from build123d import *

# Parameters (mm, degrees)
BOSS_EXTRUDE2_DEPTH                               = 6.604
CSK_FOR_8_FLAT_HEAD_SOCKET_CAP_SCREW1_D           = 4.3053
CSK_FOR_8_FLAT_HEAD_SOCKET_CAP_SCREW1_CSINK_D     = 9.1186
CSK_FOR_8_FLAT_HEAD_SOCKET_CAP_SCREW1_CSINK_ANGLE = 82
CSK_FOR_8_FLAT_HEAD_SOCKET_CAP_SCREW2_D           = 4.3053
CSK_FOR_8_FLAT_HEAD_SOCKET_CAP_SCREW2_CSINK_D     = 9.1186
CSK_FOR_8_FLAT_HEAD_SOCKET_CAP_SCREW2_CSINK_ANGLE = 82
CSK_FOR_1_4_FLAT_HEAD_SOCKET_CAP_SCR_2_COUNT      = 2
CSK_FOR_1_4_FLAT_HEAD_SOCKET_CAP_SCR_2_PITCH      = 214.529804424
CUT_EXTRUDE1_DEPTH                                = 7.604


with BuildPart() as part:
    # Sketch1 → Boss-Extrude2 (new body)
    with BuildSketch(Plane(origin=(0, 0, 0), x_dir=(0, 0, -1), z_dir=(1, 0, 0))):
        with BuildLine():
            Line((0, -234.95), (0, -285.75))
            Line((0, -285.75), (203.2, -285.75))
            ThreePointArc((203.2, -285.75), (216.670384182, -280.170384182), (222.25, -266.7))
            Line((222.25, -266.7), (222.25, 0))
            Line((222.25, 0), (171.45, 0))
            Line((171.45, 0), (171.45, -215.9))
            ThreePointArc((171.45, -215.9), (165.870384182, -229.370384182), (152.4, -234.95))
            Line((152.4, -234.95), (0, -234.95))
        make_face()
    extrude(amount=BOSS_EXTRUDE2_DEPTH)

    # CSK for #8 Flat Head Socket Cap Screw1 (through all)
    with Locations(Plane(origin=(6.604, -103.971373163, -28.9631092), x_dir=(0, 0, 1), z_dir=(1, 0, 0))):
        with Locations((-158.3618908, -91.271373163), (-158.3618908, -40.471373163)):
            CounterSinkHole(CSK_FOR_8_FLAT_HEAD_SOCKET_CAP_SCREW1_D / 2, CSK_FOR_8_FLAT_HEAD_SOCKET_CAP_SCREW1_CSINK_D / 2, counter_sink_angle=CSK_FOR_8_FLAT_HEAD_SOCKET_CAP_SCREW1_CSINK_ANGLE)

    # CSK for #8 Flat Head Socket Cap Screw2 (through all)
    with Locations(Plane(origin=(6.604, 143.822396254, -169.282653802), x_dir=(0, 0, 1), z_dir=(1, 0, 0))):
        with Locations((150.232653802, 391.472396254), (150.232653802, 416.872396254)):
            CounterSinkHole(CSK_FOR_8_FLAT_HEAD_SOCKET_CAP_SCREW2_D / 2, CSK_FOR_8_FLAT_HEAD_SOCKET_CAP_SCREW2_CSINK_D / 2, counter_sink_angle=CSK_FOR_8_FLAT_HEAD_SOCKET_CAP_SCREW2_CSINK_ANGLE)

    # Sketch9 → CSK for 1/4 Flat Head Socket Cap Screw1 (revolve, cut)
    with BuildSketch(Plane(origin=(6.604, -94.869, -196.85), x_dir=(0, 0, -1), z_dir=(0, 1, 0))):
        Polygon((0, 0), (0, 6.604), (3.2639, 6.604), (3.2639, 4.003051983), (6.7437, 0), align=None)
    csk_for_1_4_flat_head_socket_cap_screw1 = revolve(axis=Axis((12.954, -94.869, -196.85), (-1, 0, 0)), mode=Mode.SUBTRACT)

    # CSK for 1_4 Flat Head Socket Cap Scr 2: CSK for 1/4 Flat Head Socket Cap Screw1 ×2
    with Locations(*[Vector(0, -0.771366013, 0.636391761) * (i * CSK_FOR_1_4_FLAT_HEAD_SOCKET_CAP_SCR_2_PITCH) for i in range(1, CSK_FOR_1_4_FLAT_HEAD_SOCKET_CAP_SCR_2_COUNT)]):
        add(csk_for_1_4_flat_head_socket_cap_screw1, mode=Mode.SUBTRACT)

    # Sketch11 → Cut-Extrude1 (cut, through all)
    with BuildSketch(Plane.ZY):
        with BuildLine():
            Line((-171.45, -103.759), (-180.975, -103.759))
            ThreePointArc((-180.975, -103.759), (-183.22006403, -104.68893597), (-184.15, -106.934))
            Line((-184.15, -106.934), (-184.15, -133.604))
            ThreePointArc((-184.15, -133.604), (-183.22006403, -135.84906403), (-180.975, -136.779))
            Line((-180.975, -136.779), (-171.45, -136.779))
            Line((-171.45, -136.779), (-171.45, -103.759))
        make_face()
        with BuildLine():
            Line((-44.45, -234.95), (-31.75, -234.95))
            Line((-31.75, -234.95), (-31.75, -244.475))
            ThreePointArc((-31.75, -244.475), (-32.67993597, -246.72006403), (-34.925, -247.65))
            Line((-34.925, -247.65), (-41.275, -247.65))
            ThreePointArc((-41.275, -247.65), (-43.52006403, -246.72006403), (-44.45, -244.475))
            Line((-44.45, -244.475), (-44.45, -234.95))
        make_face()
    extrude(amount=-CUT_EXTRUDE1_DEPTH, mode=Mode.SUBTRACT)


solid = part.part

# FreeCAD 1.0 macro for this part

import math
import FreeCAD as App
import Part
import Sketcher
from FreeCAD import Vector
Q = App.Units.Quantity

doc = App.newDocument("Part")
body = doc.addObject("PartDesign::Body", "Body")

# Sketch on YZ plane
sketch1 = body.newObject("Sketcher::SketchObject", "Sketch")
sketch1.AttachmentSupport = (doc.getObject("YZ_Plane"), [""])
sketch1.MapMode = "FlatFace"
sketch1.addGeometry(Part.LineSegment(Vector(-235, 0, 0), Vector(-286, 0, 0)), False)
sketch1.addGeometry(Part.LineSegment(Vector(-286, 0, 0), Vector(-286, -203, 0)), False)
sketch1.addGeometry(Part.ArcOfCircle(Part.Circle(Vector(-267, -203, 0), Vector(0, 0, 1), 19), math.radians(180), math.radians(270)), False)
sketch1.addGeometry(Part.LineSegment(Vector(-267, -222, 0), Vector(0, -222, 0)), False)
sketch1.addGeometry(Part.LineSegment(Vector(0, -222, 0), Vector(0, -171, 0)), False)
sketch1.addGeometry(Part.LineSegment(Vector(0, -171, 0), Vector(-216, -171, 0)), False)
sketch1.addGeometry(Part.ArcOfCircle(Part.Circle(Vector(-216, -152, 0), Vector(0, 0, 1), 19), math.radians(180), math.radians(270)), False)
sketch1.addGeometry(Part.LineSegment(Vector(-235, -152, 0), Vector(-235, 0, 0)), False)
sketch1.addConstraint(Sketcher.Constraint("Coincident", 0, 2, 1, 1))
sketch1.addConstraint(Sketcher.Constraint("Tangent", 1, 2, 2, 1))
sketch1.addConstraint(Sketcher.Constraint("Tangent", 2, 2, 3, 1))
sketch1.addConstraint(Sketcher.Constraint("Coincident", 3, 2, 4, 1))
sketch1.addConstraint(Sketcher.Constraint("Coincident", 4, 2, 5, 1))
sketch1.addConstraint(Sketcher.Constraint("Tangent", 5, 2, 6, 2))
sketch1.addConstraint(Sketcher.Constraint("Tangent", 6, 1, 7, 1))
sketch1.addConstraint(Sketcher.Constraint("Coincident", 7, 2, 0, 1))
sketch1.addConstraint(Sketcher.Constraint("Horizontal", 0))
sketch1.addConstraint(Sketcher.Constraint("Vertical", 1))
sketch1.addConstraint(Sketcher.Constraint("Horizontal", 3))
sketch1.addConstraint(Sketcher.Constraint("Vertical", 4))
sketch1.addConstraint(Sketcher.Constraint("Horizontal", 5))
sketch1.addConstraint(Sketcher.Constraint("Vertical", 7))
sketch1.addConstraint(Sketcher.Constraint("Equal", 2, 6))
sketch1.addConstraint(Sketcher.Constraint("PointOnObject", 0, 2, -1))
sketch1.addConstraint(Sketcher.Constraint("PointOnObject", 3, 2, -2))
sketch1.addConstraint(Sketcher.Constraint("Equal", 0, 4))
sketch1.addConstraint(Sketcher.Constraint("DistanceX", 0, 2, 0, 1, Q("2 in")))
sketch1.addConstraint(Sketcher.Constraint("DistanceY", 1, 2, 1, 1, Q("8 in")))
sketch1.addConstraint(Sketcher.Constraint("Radius", 2, Q("0.75 in")))
sketch1.addConstraint(Sketcher.Constraint("DistanceX", 3, 1, 3, 2, Q("10.5 in")))
pad1 = body.newObject("PartDesign::Pad", "Pad")
pad1.Profile = sketch1
pad1.Length = Q("0.26 in")

# Sketch on YZ plane
sketch2 = body.newObject("Sketcher::SketchObject", "Sketch001")
sketch2.AttachmentSupport = (doc.getObject("YZ_Plane"), [""])
sketch2.MapMode = "FlatFace"
sketch2.AttachmentOffset = App.Placement(Vector(0, 0, 0.26 * 25.4), App.Rotation())
sketch2.addGeometry(Part.Circle(Vector(-12.7, -187.3, 0), Vector(0, 0, 1), 2.2), False)
sketch2.addGeometry(Part.Circle(Vector(-63.5, -187.3, 0), Vector(0, 0, 1), 2.2), False)
sketch2.addConstraint(Sketcher.Constraint("Equal", 0, 1))
sketch2.addConstraint(Sketcher.Constraint("Horizontal", 0, 3, 1, 3))
sketch2.addConstraint(Sketcher.Constraint("DistanceX", 1, 3, 0, 3, Q("2 in")))
sketch2.addConstraint(Sketcher.Constraint("Diameter", 0, Q("0.1695 in")))
sketch2.addConstraint(Sketcher.Constraint("DistanceX", 0, 3, -1, 1, Q("0.5 in")))
sketch2.addConstraint(Sketcher.Constraint("DistanceY", 0, 3, -1, 1, Q("7.375 in")))
doc.recompute()
hole = body.newObject("PartDesign::Hole", "Hole")
hole.Profile = sketch2
hole.ThreadType = "None"
hole.Diameter = Q("0.1695 in")
hole.DepthType = "ThroughAll"
hole.HoleCutType = "Countersink"
hole.HoleCutDiameter = Q("0.359 in")
hole.HoleCutCountersinkAngle = 82

# Sketch on YZ plane
sketch3 = body.newObject("Sketcher::SketchObject", "Sketch002")
sketch3.AttachmentSupport = (doc.getObject("YZ_Plane"), [""])
sketch3.MapMode = "FlatFace"
sketch3.AttachmentOffset = App.Placement(Vector(0, 0, 0.26 * 25.4), App.Rotation())
sketch3.addGeometry(Part.Circle(Vector(-247.7, -19.1, 0), Vector(0, 0, 1), 2.2), False)
sketch3.addGeometry(Part.Circle(Vector(-273.1, -19.1, 0), Vector(0, 0, 1), 2.2), False)
sketch3.addConstraint(Sketcher.Constraint("Equal", 0, 1))
sketch3.addConstraint(Sketcher.Constraint("Horizontal", 0, 3, 1, 3))
sketch3.addConstraint(Sketcher.Constraint("DistanceX", 1, 3, 0, 3, Q("1 in")))
sketch3.addConstraint(Sketcher.Constraint("Diameter", 0, Q("0.1695 in")))
sketch3.addConstraint(Sketcher.Constraint("DistanceX", 0, 3, -1, 1, Q("9.75 in")))
sketch3.addConstraint(Sketcher.Constraint("DistanceY", 0, 3, -1, 1, Q("0.75 in")))
doc.recompute()
hole2 = body.newObject("PartDesign::Hole", "Hole001")
hole2.Profile = sketch3
hole2.ThreadType = "None"
hole2.Diameter = Q("0.1695 in")
hole2.DepthType = "ThroughAll"
hole2.HoleCutType = "Countersink"
hole2.HoleCutDiameter = Q("0.359 in")
hole2.HoleCutCountersinkAngle = 82

# Sketch on XZ plane
sketch4 = body.newObject("Sketcher::SketchObject", "Sketch003")
sketch4.AttachmentSupport = (doc.getObject("XZ_Plane"), [""])
sketch4.MapMode = "FlatFace"
sketch4.AttachmentOffset = App.Placement(Vector(0, 0, 3.735 * 25.4), App.Rotation())
sketch4.addGeometry(Part.LineSegment(Vector(0, -196.8, 0), Vector(6.6, -196.8, 0)), False)
sketch4.addGeometry(Part.LineSegment(Vector(6.6, -196.8, 0), Vector(6.6, -203.6, 0)), False)
sketch4.addGeometry(Part.LineSegment(Vector(6.6, -203.6, 0), Vector(2.6, -200.1, 0)), False)
sketch4.addGeometry(Part.LineSegment(Vector(2.6, -200.1, 0), Vector(0, -200.1, 0)), False)
sketch4.addGeometry(Part.LineSegment(Vector(0, -200.1, 0), Vector(0, -196.8, 0)), False)
sketch4.addGeometry(Part.LineSegment(Vector(6.6, -196.8, 0), Vector(0, -196.8, 0)), True)  # axis
sketch4.addConstraint(Sketcher.Constraint("Coincident", 0, 2, 1, 1))
sketch4.addConstraint(Sketcher.Constraint("Coincident", 1, 2, 2, 1))
sketch4.addConstraint(Sketcher.Constraint("Coincident", 2, 2, 3, 1))
sketch4.addConstraint(Sketcher.Constraint("Coincident", 3, 2, 4, 1))
sketch4.addConstraint(Sketcher.Constraint("Coincident", 4, 2, 0, 1))
sketch4.addConstraint(Sketcher.Constraint("Horizontal", 0))
sketch4.addConstraint(Sketcher.Constraint("Vertical", 1))
sketch4.addConstraint(Sketcher.Constraint("Horizontal", 3))
sketch4.addConstraint(Sketcher.Constraint("Vertical", 4))
sketch4.addConstraint(Sketcher.Constraint("Horizontal", 5))
sketch4.addConstraint(Sketcher.Constraint("Coincident", 5, 1, 0, 2))
sketch4.addConstraint(Sketcher.Constraint("PointOnObject", 3, 2, -2))
sketch4.addConstraint(Sketcher.Constraint("PointOnObject", 5, 2, -2))
sketch4.addConstraint(Sketcher.Constraint("Angle", 2, Q("139 deg")))
sketch4.addConstraint(Sketcher.Constraint("DistanceX", 0, 1, 0, 2, Q("0.26 in")))
sketch4.addConstraint(Sketcher.Constraint("DistanceY", 0, 2, -1, 1, Q("7.75 in")))
sketch4.addConstraint(Sketcher.Constraint("DistanceY", 1, 2, 1, 1, Q("0.2655 in")))
sketch4.addConstraint(Sketcher.Constraint("DistanceY", 4, 1, 4, 2, Q("0.1285 in")))
groove = body.newObject("PartDesign::Groove", "Groove")
groove.Profile = sketch4
groove.ReferenceAxis = (sketch4, ["Axis0"])
groove.Angle = 360
doc.recompute()

datumline = body.newObject("PartDesign::Line", "DatumLine")
datumline.Placement = App.Placement(Vector(0, 0, 0), App.Rotation(Vector(0, 0, 1), Vector(0, -0.771366013, 0.636391761)))
linearpattern = body.newObject("PartDesign::LinearPattern", "LinearPattern")
linearpattern.Originals = [groove]
linearpattern.Direction = (datumline, [""])
linearpattern.Mode = "offset"
linearpattern.Offset = 214.529804
linearpattern.Occurrences = 2
body.Tip = linearpattern

# Sketch on YZ plane
sketch5 = body.newObject("Sketcher::SketchObject", "Sketch004")
sketch5.AttachmentSupport = (doc.getObject("YZ_Plane"), [""])
sketch5.MapMode = "FlatFace"
sketch5.addGeometry(Part.LineSegment(Vector(-103.8, -171.4, 0), Vector(-103.8, -181, 0)), False)
sketch5.addGeometry(Part.ArcOfCircle(Part.Circle(Vector(-106.9, -181, 0), Vector(0, 0, 1), 3.2), math.radians(-90), math.radians(0)), False)
sketch5.addGeometry(Part.LineSegment(Vector(-106.9, -184.2, 0), Vector(-133.6, -184.2, 0)), False)
sketch5.addGeometry(Part.ArcOfCircle(Part.Circle(Vector(-133.6, -181, 0), Vector(0, 0, 1), 3.2), math.radians(-180), math.radians(-90)), False)
sketch5.addGeometry(Part.LineSegment(Vector(-136.8, -181, 0), Vector(-136.8, -171.4, 0)), False)
sketch5.addGeometry(Part.LineSegment(Vector(-136.8, -171.4, 0), Vector(-103.8, -171.4, 0)), False)
sketch5.addGeometry(Part.LineSegment(Vector(-234.9, -31.8, 0), Vector(-234.9, -44.5, 0)), False)
sketch5.addGeometry(Part.LineSegment(Vector(-234.9, -44.5, 0), Vector(-244.5, -44.5, 0)), False)
sketch5.addGeometry(Part.ArcOfCircle(Part.Circle(Vector(-244.5, -41.3, 0), Vector(0, 0, 1), 3.2), math.radians(-180), math.radians(-90)), False)
sketch5.addGeometry(Part.LineSegment(Vector(-247.7, -41.3, 0), Vector(-247.7, -34.9, 0)), False)
sketch5.addGeometry(Part.ArcOfCircle(Part.Circle(Vector(-244.5, -34.9, 0), Vector(0, 0, 1), 3.2), math.radians(90), math.radians(180)), False)
sketch5.addGeometry(Part.LineSegment(Vector(-244.5, -31.8, 0), Vector(-234.9, -31.8, 0)), False)
sketch5.addConstraint(Sketcher.Constraint("Tangent", 0, 2, 1, 2))
sketch5.addConstraint(Sketcher.Constraint("Tangent", 1, 1, 2, 1))
sketch5.addConstraint(Sketcher.Constraint("Tangent", 2, 2, 3, 2))
sketch5.addConstraint(Sketcher.Constraint("Tangent", 3, 1, 4, 1))
sketch5.addConstraint(Sketcher.Constraint("Coincident", 4, 2, 5, 1))
sketch5.addConstraint(Sketcher.Constraint("Coincident", 5, 2, 0, 1))
sketch5.addConstraint(Sketcher.Constraint("Coincident", 6, 2, 7, 1))
sketch5.addConstraint(Sketcher.Constraint("Tangent", 7, 2, 8, 2))
sketch5.addConstraint(Sketcher.Constraint("Tangent", 8, 1, 9, 1))
sketch5.addConstraint(Sketcher.Constraint("Tangent", 9, 2, 10, 2))
sketch5.addConstraint(Sketcher.Constraint("Tangent", 10, 1, 11, 1))
sketch5.addConstraint(Sketcher.Constraint("Coincident", 11, 2, 6, 1))
sketch5.addConstraint(Sketcher.Constraint("Vertical", 0))
sketch5.addConstraint(Sketcher.Constraint("Horizontal", 2))
sketch5.addConstraint(Sketcher.Constraint("Vertical", 4))
sketch5.addConstraint(Sketcher.Constraint("Horizontal", 5))
sketch5.addConstraint(Sketcher.Constraint("Vertical", 6))
sketch5.addConstraint(Sketcher.Constraint("Horizontal", 7))
sketch5.addConstraint(Sketcher.Constraint("Vertical", 9))
sketch5.addConstraint(Sketcher.Constraint("Horizontal", 11))
sketch5.addConstraint(Sketcher.Constraint("Equal", 1, 3))
sketch5.addConstraint(Sketcher.Constraint("Equal", 3, 8))
sketch5.addConstraint(Sketcher.Constraint("Equal", 8, 10))
sketch5.addConstraint(Sketcher.Constraint("Equal", 11, 0))
sketch5.addConstraint(Sketcher.Constraint("DistanceX", 5, 1, 5, 2, Q("1.3 in")))
sketch5.addConstraint(Sketcher.Constraint("DistanceY", 6, 2, 6, 1, Q("0.5 in")))
sketch5.addConstraint(Sketcher.Constraint("Radius", 1, Q("0.125 in")))
sketch5.addConstraint(Sketcher.Constraint("DistanceY", 4, 2, 6, 2, Q("5 in")))
sketch5.addConstraint(Sketcher.Constraint("DistanceY", 3, 3, 8, 3, Q("5.5 in")))
sketch5.addConstraint(Sketcher.Constraint("DistanceX", 1, 3, -1, 1, Q("4.21 in")))
sketch5.addConstraint(Sketcher.Constraint("DistanceY", 1, 1, -1, 1, Q("7.25 in")))
sketch5.addConstraint(Sketcher.Constraint("DistanceX", 6, 2, -1, 1, Q("9.25 in")))
pocket1 = body.newObject("PartDesign::Pocket", "Pocket")
pocket1.Profile = sketch5
pocket1.Type = "ThroughAll"
pocket1.Reversed = True

doc.recompute()
